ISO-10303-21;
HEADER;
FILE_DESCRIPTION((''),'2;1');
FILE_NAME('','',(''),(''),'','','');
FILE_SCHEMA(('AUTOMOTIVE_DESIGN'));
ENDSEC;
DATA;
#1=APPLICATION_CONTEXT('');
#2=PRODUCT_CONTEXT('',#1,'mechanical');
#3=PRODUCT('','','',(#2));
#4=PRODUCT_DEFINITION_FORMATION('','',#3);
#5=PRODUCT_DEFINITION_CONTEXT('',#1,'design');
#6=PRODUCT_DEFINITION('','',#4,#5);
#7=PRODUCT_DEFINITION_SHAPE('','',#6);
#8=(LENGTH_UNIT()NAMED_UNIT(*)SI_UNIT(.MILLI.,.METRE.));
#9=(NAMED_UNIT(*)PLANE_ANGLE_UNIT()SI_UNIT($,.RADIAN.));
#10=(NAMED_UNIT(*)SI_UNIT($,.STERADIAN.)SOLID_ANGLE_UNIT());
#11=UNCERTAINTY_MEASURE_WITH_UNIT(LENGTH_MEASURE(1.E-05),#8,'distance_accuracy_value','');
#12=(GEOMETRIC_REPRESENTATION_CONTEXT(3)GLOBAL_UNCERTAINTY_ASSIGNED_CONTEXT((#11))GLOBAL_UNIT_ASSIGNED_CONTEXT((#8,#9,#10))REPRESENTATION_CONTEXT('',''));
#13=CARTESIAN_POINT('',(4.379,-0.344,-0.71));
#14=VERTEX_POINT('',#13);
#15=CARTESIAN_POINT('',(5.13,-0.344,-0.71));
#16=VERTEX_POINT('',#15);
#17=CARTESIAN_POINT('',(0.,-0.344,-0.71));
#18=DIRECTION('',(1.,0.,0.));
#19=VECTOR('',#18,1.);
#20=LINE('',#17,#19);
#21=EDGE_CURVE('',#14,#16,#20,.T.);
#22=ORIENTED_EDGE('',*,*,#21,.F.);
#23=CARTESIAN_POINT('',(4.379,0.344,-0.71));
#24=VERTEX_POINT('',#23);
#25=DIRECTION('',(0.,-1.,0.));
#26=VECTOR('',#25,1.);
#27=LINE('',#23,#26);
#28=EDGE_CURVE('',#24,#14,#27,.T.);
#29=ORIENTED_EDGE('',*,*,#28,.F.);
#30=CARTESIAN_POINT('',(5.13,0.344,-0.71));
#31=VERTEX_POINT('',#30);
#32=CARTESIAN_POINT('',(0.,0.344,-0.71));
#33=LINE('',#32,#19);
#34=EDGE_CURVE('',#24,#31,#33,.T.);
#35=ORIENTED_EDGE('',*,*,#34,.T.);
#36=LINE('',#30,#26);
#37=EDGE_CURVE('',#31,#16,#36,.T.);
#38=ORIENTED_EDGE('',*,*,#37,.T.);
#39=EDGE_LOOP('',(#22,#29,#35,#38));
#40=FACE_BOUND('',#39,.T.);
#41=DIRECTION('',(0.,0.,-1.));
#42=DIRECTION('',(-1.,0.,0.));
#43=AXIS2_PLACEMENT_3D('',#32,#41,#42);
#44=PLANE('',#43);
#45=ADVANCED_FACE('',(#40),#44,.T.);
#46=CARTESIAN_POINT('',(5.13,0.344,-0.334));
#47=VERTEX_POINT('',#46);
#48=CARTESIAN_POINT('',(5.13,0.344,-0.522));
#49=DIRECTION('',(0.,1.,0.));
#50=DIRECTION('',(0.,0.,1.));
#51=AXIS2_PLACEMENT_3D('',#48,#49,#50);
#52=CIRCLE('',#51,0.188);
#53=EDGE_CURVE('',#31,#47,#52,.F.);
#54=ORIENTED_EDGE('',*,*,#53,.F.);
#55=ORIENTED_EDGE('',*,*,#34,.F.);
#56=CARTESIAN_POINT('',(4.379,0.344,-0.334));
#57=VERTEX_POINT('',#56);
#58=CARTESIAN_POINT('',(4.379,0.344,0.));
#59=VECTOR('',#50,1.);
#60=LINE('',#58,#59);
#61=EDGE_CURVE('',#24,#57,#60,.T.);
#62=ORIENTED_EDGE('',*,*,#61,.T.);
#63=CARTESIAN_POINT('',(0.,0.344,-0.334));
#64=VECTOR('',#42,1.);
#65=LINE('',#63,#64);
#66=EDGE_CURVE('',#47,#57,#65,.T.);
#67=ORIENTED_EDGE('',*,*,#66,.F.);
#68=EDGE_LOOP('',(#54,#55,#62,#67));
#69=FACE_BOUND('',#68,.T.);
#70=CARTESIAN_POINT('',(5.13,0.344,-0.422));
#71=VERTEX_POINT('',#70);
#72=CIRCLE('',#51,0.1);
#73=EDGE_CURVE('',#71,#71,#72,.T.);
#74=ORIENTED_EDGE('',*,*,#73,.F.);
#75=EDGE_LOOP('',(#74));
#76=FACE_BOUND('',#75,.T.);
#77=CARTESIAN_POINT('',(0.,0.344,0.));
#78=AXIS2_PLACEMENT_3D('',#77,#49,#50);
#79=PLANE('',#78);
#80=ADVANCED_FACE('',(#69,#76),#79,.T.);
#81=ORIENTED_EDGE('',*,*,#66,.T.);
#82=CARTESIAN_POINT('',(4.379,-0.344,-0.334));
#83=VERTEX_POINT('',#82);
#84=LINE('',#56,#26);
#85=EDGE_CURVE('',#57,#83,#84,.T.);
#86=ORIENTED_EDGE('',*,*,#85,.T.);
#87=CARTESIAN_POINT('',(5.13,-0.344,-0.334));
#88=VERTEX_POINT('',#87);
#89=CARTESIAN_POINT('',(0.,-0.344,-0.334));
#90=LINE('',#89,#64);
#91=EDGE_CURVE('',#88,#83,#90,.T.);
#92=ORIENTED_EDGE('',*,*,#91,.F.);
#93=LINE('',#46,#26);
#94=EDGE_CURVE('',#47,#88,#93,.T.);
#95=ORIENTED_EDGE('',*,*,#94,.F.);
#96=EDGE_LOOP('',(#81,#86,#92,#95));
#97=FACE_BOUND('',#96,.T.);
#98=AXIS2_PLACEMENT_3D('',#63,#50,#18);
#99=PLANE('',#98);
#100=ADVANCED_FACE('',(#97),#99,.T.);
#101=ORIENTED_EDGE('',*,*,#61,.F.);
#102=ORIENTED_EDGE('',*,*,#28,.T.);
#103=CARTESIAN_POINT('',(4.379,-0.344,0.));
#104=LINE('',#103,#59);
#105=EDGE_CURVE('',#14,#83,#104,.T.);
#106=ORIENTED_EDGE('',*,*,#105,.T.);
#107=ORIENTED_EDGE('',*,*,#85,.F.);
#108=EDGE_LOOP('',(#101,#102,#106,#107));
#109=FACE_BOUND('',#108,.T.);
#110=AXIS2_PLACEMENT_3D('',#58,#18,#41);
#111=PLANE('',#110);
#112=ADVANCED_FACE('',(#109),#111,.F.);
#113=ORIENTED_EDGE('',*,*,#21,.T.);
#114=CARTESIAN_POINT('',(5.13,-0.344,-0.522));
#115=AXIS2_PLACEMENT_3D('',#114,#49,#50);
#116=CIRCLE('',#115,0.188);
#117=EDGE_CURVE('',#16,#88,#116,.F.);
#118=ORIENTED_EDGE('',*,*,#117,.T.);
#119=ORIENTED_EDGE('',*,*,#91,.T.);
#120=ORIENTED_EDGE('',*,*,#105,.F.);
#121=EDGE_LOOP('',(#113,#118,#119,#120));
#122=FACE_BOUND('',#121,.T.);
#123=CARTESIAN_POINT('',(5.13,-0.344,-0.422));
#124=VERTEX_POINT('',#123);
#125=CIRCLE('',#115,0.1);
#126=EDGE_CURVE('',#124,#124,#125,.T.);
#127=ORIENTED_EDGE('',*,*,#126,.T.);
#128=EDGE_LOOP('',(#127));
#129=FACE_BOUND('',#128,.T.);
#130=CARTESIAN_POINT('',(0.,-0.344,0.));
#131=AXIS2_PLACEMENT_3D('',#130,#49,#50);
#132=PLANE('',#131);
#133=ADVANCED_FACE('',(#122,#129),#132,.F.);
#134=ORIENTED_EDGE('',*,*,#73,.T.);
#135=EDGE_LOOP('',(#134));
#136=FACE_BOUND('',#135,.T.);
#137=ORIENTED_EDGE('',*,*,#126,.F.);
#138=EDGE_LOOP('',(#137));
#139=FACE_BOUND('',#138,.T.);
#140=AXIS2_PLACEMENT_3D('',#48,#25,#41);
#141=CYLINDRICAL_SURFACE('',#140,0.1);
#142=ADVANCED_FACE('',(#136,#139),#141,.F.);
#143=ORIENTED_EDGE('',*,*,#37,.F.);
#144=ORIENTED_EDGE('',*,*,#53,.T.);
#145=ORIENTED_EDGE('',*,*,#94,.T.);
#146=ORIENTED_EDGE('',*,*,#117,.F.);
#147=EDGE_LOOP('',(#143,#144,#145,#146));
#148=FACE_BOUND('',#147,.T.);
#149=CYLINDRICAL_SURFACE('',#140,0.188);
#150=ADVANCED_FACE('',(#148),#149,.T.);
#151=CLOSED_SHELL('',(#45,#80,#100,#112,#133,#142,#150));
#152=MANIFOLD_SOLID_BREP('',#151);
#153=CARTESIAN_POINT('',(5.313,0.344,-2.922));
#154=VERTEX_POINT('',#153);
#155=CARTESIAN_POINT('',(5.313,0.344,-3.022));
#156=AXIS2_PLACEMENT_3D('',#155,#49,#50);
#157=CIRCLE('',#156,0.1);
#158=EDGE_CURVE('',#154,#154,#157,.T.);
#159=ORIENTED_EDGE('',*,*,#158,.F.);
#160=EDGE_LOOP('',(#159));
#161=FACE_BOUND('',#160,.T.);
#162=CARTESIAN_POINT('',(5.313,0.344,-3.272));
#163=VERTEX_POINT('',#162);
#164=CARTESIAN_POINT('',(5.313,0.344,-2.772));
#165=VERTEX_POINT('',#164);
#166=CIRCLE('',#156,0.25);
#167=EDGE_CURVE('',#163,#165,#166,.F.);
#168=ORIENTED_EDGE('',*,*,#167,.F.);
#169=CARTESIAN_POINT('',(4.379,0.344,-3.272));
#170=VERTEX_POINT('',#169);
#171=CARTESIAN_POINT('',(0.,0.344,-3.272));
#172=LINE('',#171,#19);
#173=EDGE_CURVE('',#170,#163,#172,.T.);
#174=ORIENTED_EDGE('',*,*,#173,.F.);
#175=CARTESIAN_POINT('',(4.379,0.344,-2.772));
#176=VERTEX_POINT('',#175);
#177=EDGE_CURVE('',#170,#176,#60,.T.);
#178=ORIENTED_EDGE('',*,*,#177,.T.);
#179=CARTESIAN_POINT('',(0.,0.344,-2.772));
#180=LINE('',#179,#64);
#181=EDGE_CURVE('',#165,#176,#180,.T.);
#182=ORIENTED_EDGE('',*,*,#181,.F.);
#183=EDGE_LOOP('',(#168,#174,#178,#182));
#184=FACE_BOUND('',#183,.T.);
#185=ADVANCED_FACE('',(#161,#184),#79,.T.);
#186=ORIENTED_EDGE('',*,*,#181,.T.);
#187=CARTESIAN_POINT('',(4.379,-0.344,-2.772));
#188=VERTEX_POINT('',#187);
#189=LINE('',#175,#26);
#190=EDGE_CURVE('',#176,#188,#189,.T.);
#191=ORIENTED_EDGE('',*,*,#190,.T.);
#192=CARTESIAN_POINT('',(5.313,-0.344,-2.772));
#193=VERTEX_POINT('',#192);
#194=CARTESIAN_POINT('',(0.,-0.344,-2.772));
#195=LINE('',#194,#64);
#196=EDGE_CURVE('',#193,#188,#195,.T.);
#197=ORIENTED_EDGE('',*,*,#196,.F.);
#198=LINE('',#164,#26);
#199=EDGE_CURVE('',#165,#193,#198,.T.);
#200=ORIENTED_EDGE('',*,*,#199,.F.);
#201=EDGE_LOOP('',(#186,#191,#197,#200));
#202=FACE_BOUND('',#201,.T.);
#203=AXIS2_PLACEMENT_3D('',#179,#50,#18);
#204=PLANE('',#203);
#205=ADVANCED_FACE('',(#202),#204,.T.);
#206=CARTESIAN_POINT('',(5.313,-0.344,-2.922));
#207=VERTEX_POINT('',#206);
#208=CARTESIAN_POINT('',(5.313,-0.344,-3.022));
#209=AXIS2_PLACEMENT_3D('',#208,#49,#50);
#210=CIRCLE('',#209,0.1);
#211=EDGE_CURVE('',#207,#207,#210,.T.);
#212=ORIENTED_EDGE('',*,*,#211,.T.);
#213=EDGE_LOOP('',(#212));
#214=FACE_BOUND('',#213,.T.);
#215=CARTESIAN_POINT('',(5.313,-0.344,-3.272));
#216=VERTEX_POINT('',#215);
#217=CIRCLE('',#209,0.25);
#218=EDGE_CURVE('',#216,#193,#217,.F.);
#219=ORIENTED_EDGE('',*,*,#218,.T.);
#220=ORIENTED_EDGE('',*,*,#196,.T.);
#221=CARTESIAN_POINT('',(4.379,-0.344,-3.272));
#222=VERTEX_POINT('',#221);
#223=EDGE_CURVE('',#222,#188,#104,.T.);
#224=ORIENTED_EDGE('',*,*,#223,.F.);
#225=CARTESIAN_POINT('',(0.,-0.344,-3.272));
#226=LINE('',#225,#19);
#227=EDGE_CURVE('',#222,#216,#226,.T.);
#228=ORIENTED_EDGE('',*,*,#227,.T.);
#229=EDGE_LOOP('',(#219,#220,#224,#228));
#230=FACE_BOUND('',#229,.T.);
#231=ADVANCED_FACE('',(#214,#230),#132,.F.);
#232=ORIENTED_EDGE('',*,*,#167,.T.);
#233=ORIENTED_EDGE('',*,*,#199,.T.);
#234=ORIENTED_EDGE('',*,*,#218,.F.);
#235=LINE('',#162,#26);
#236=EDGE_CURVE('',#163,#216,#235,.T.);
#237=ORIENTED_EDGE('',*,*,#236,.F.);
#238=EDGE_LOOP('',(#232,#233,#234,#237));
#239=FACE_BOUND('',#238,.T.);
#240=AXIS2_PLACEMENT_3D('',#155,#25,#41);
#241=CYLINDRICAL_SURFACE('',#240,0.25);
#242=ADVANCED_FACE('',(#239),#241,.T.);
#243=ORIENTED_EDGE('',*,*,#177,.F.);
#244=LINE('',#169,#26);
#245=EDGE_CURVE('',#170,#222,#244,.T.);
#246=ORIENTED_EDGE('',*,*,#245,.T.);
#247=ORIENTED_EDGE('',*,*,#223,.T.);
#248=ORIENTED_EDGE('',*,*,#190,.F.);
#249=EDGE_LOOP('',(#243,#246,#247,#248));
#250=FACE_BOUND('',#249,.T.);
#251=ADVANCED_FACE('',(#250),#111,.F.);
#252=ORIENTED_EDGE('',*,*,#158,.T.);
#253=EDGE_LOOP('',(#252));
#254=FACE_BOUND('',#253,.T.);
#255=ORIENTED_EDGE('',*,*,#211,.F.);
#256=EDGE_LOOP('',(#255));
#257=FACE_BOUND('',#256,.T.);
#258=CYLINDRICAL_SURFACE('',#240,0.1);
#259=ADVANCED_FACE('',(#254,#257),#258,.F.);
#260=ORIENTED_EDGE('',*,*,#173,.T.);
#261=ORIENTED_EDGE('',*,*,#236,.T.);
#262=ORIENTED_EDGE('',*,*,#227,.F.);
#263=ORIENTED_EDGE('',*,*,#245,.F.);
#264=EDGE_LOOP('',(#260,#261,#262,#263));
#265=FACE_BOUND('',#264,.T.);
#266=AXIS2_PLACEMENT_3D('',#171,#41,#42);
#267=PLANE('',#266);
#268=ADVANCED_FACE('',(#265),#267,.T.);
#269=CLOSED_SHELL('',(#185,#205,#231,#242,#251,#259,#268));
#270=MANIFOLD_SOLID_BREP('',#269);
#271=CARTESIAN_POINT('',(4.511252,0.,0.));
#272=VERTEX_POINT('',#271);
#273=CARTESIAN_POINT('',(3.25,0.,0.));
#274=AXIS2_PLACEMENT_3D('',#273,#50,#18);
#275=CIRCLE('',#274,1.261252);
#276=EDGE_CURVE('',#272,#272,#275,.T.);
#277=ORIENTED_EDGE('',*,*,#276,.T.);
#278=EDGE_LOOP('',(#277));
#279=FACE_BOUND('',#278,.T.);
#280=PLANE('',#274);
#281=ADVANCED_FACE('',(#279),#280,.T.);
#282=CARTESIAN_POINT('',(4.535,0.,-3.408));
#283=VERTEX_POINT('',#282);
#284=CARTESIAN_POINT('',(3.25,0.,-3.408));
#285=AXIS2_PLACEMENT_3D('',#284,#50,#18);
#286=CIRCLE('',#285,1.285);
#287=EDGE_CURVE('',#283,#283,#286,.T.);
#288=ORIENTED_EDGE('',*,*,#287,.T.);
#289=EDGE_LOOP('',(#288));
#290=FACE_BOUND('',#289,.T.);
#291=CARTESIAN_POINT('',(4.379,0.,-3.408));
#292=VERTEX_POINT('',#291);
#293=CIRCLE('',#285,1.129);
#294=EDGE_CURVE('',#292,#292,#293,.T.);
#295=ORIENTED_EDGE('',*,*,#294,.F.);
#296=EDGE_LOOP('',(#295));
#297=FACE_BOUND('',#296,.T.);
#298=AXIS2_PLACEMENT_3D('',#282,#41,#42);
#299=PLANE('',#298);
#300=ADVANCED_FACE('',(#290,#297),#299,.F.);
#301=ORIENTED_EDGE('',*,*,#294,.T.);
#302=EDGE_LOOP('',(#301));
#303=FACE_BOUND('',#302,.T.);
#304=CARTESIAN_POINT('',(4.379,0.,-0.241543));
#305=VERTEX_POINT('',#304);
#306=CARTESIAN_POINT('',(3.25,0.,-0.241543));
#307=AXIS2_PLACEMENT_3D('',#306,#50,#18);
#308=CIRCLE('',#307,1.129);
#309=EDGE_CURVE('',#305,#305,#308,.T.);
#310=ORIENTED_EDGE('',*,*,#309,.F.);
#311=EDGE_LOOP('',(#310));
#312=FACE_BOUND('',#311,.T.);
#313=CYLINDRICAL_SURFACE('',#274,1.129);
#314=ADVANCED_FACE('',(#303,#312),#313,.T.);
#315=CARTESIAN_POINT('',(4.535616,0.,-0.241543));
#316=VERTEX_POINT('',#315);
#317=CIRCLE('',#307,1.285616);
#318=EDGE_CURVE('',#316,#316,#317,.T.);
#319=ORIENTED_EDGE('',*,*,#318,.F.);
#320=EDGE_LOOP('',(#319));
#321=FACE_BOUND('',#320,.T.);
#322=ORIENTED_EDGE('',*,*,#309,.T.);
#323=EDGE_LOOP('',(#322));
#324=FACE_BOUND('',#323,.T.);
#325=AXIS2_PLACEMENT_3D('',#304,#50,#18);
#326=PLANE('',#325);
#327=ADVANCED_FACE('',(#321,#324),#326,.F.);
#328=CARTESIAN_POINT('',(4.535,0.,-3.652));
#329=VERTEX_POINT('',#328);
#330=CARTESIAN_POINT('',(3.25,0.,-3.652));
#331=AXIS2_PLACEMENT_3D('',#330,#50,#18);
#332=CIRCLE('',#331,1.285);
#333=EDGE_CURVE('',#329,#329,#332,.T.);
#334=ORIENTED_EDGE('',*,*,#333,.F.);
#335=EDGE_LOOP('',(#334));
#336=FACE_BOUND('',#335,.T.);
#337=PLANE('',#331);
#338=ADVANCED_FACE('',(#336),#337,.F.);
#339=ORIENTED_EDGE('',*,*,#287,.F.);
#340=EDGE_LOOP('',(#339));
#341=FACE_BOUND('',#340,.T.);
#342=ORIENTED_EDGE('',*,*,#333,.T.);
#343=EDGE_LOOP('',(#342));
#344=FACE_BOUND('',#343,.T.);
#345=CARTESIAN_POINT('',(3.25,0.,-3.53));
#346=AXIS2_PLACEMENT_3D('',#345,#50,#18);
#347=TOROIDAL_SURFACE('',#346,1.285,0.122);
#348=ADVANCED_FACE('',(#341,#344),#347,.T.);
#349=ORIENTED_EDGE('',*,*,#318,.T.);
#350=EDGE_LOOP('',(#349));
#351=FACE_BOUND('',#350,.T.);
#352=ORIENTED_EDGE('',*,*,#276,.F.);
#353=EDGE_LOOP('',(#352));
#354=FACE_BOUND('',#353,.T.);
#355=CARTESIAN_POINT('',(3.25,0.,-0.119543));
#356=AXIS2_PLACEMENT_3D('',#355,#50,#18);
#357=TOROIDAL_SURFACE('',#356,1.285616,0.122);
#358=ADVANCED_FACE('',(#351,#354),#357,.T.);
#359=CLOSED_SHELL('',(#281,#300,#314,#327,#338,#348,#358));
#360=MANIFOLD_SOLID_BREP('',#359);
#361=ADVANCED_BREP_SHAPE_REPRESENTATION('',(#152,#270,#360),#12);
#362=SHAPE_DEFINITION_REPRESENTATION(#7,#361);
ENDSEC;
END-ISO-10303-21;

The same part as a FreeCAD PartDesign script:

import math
import FreeCAD as App
import Part
import Sketcher

doc = App.newDocument("Part")
body = doc.addObject("PartDesign::Body", "Body")

# Sketch on XZ plane
sketch1 = doc.addObject("Sketcher::SketchObject", "Sketch")
body.addObject(sketch1)
sketch1.AttachmentSupport = (doc.XZ_Plane, [""])
sketch1.MapMode = "FlatFace"
sketch1.addGeometry(Part.LineSegment(App.Vector(4.38, -3.41, 0), App.Vector(4.54, -3.41, 0)), False)
sketch1.addGeometry(Part.ArcOfCircle(Part.Circle(App.Vector(4.54, -3.53, 0), App.Vector(0, 0, 1), 0.12), math.radians(-90), math.radians(90)), False)
sketch1.addGeometry(Part.LineSegment(App.Vector(4.54, -3.65, 0), App.Vector(3.25, -3.65, 0)), False)
sketch1.addGeometry(Part.LineSegment(App.Vector(3.25, -3.65, 0), App.Vector(3.25, 0, 0)), False)
sketch1.addGeometry(Part.LineSegment(App.Vector(3.25, 0, 0), App.Vector(4.51, 0, 0)), False)
sketch1.addGeometry(Part.ArcOfCircle(Part.Circle(App.Vector(4.54, -0.12, 0), App.Vector(0, 0, 1), 0.12), math.radians(-90), math.radians(102)), False)
sketch1.addGeometry(Part.LineSegment(App.Vector(4.54, -0.24, 0), App.Vector(4.38, -0.24, 0)), False)
sketch1.addGeometry(Part.LineSegment(App.Vector(4.38, -0.24, 0), App.Vector(4.38, -3.41, 0)), False)
sketch1.addGeometry(Part.LineSegment(App.Vector(3.25, 0, 0), App.Vector(3.25, -3.65, 0)), True)  # axis
sketch1.addConstraint(Sketcher.Constraint("Tangent", 0, 2, 1, 2))
sketch1.addConstraint(Sketcher.Constraint("Tangent", 1, 1, 2, 1))
sketch1.addConstraint(Sketcher.Constraint("Coincident", 2, 2, 3, 1))
sketch1.addConstraint(Sketcher.Constraint("Coincident", 3, 2, 4, 1))
sketch1.addConstraint(Sketcher.Constraint("Coincident", 4, 2, 5, 2))
sketch1.addConstraint(Sketcher.Constraint("Tangent", 5, 1, 6, 1))
sketch1.addConstraint(Sketcher.Constraint("Coincident", 6, 2, 7, 1))
sketch1.addConstraint(Sketcher.Constraint("Coincident", 7, 2, 0, 1))
sketch1.addConstraint(Sketcher.Constraint("Horizontal", 0))
sketch1.addConstraint(Sketcher.Constraint("Horizontal", 2))
sketch1.addConstraint(Sketcher.Constraint("Vertical", 3))
sketch1.addConstraint(Sketcher.Constraint("Horizontal", 4))
sketch1.addConstraint(Sketcher.Constraint("Horizontal", 6))
sketch1.addConstraint(Sketcher.Constraint("Vertical", 7))
sketch1.addConstraint(Sketcher.Constraint("Vertical", 8))
sketch1.addConstraint(Sketcher.Constraint("Coincident", 8, 1, 3, 2))
sketch1.addConstraint(Sketcher.Constraint("Equal", 1, 5))
sketch1.addConstraint(Sketcher.Constraint("PointOnObject", 3, 2, -1))
sketch1.addConstraint(Sketcher.Constraint("Horizontal", 1, 1, 8, 2))
sketch1.addConstraint(Sketcher.Constraint("Radius", 1, 0.122))
sketch1.addConstraint(Sketcher.Constraint("DistanceX", 0, 1, 0, 2, 0.156))
sketch1.addConstraint(Sketcher.Constraint("DistanceX", 2, 2, 2, 1, 1.285))
sketch1.addConstraint(Sketcher.Constraint("DistanceY", 3, 1, 3, 2, 3.652))
sketch1.addConstraint(Sketcher.Constraint("DistanceX", -1, 1, 2, 2, 3.25))
sketch1.addConstraint(Sketcher.Constraint("DistanceX", 4, 1, 4, 2, 1.261252))
sketch1.addConstraint(Sketcher.Constraint("DistanceX", 6, 2, 6, 1, 0.156616))
revolution = doc.addObject("PartDesign::Revolution", "Revolution")
body.addObject(revolution)
revolution.Profile = sketch1
revolution.ReferenceAxis = (sketch1, ["Axis0"])
revolution.Angle = 360
body2 = doc.addObject("PartDesign::Body", "Body001")

# Sketch on XZ plane
sketch2 = doc.addObject("Sketcher::SketchObject", "Sketch001")
body2.addObject(sketch2)
sketch2.AttachmentSupport = (doc.getObject("XZ_Plane001"), [""])
sketch2.MapMode = "FlatFace"
sketch2.addGeometry(Part.LineSegment(App.Vector(5.13, -0.71, 0), App.Vector(4.38, -0.71, 0)), False)
sketch2.addGeometry(Part.LineSegment(App.Vector(4.38, -0.71, 0), App.Vector(4.38, -0.33, 0)), False)
sketch2.addGeometry(Part.LineSegment(App.Vector(4.38, -0.33, 0), App.Vector(5.13, -0.33, 0)), False)
sketch2.addGeometry(Part.ArcOfCircle(Part.Circle(App.Vector(5.13, -0.52, 0), App.Vector(0, 0, 1), 0.19), math.radians(-90), math.radians(90)), False)
sketch2.addGeometry(Part.Circle(App.Vector(5.13, -0.52, 0), App.Vector(0, 0, 1), 0.1), False)
sketch2.addConstraint(Sketcher.Constraint("Coincident", 0, 2, 1, 1))
sketch2.addConstraint(Sketcher.Constraint("Coincident", 1, 2, 2, 1))
sketch2.addConstraint(Sketcher.Constraint("Tangent", 2, 2, 3, 2))
sketch2.addConstraint(Sketcher.Constraint("Tangent", 3, 1, 0, 1))
sketch2.addConstraint(Sketcher.Constraint("Horizontal", 0))
sketch2.addConstraint(Sketcher.Constraint("Vertical", 1))
sketch2.addConstraint(Sketcher.Constraint("Horizontal", 2))
sketch2.addConstraint(Sketcher.Constraint("Coincident", 4, 3, 3, 3))
sketch2.addConstraint(Sketcher.Constraint("Diameter", 4, 0.2))
sketch2.addConstraint(Sketcher.Constraint("Radius", 3, 0.188))
sketch2.addConstraint(Sketcher.Constraint("DistanceX", 0, 2, 0, 1, 0.751))
sketch2.addConstraint(Sketcher.Constraint("DistanceX", -1, 1, 3, 3, 5.13))
sketch2.addConstraint(Sketcher.Constraint("DistanceY", 0, 2, -1, 1, 0.71))
pad1 = doc.addObject("PartDesign::Pad", "Pad")
body2.addObject(pad1)
pad1.Profile = sketch2
pad1.Length = 0.688
pad1.Midplane = True
body3 = doc.addObject("PartDesign::Body", "Body002")

# Sketch on XZ plane
sketch3 = doc.addObject("Sketcher::SketchObject", "Sketch002")
body3.addObject(sketch3)
sketch3.AttachmentSupport = (doc.getObject("XZ_Plane002"), [""])
sketch3.MapMode = "FlatFace"
sketch3.addGeometry(Part.LineSegment(App.Vector(5.31, -3.27, 0), App.Vector(4.38, -3.27, 0)), False)
sketch3.addGeometry(Part.LineSegment(App.Vector(4.38, -3.27, 0), App.Vector(4.38, -2.77, 0)), False)
sketch3.addGeometry(Part.LineSegment(App.Vector(4.38, -2.77, 0), App.Vector(5.31, -2.77, 0)), False)
sketch3.addGeometry(Part.ArcOfCircle(Part.Circle(App.Vector(5.31, -3.02, 0), App.Vector(0, 0, 1), 0.25), math.radians(-90), math.radians(90)), False)
sketch3.addGeometry(Part.Circle(App.Vector(5.31, -3.02, 0), App.Vector(0, 0, 1), 0.1), False)
sketch3.addConstraint(Sketcher.Constraint("Coincident", 0, 2, 1, 1))
sketch3.addConstraint(Sketcher.Constraint("Coincident", 1, 2, 2, 1))
sketch3.addConstraint(Sketcher.Constraint("Tangent", 2, 2, 3, 2))
sketch3.addConstraint(Sketcher.Constraint("Tangent", 3, 1, 0, 1))
sketch3.addConstraint(Sketcher.Constraint("Horizontal", 0))
sketch3.addConstraint(Sketcher.Constraint("Vertical", 1))
sketch3.addConstraint(Sketcher.Constraint("Horizontal", 2))
sketch3.addConstraint(Sketcher.Constraint("Coincident", 4, 3, 3, 3))
sketch3.addConstraint(Sketcher.Constraint("Diameter", 4, 0.2))
sketch3.addConstraint(Sketcher.Constraint("Radius", 3, 0.25))
sketch3.addConstraint(Sketcher.Constraint("DistanceX", 0, 2, 0, 1, 0.934))
sketch3.addConstraint(Sketcher.Constraint("DistanceX", -1, 1, 3, 3, 5.313))
sketch3.addConstraint(Sketcher.Constraint("DistanceY", 3, 3, -1, 1, 3.022))
pad2 = doc.addObject("PartDesign::Pad", "Pad001")
body3.addObject(pad2)
pad2.Profile = sketch3
pad2.Length = 0.688
pad2.Midplane = True

doc.recompute()
